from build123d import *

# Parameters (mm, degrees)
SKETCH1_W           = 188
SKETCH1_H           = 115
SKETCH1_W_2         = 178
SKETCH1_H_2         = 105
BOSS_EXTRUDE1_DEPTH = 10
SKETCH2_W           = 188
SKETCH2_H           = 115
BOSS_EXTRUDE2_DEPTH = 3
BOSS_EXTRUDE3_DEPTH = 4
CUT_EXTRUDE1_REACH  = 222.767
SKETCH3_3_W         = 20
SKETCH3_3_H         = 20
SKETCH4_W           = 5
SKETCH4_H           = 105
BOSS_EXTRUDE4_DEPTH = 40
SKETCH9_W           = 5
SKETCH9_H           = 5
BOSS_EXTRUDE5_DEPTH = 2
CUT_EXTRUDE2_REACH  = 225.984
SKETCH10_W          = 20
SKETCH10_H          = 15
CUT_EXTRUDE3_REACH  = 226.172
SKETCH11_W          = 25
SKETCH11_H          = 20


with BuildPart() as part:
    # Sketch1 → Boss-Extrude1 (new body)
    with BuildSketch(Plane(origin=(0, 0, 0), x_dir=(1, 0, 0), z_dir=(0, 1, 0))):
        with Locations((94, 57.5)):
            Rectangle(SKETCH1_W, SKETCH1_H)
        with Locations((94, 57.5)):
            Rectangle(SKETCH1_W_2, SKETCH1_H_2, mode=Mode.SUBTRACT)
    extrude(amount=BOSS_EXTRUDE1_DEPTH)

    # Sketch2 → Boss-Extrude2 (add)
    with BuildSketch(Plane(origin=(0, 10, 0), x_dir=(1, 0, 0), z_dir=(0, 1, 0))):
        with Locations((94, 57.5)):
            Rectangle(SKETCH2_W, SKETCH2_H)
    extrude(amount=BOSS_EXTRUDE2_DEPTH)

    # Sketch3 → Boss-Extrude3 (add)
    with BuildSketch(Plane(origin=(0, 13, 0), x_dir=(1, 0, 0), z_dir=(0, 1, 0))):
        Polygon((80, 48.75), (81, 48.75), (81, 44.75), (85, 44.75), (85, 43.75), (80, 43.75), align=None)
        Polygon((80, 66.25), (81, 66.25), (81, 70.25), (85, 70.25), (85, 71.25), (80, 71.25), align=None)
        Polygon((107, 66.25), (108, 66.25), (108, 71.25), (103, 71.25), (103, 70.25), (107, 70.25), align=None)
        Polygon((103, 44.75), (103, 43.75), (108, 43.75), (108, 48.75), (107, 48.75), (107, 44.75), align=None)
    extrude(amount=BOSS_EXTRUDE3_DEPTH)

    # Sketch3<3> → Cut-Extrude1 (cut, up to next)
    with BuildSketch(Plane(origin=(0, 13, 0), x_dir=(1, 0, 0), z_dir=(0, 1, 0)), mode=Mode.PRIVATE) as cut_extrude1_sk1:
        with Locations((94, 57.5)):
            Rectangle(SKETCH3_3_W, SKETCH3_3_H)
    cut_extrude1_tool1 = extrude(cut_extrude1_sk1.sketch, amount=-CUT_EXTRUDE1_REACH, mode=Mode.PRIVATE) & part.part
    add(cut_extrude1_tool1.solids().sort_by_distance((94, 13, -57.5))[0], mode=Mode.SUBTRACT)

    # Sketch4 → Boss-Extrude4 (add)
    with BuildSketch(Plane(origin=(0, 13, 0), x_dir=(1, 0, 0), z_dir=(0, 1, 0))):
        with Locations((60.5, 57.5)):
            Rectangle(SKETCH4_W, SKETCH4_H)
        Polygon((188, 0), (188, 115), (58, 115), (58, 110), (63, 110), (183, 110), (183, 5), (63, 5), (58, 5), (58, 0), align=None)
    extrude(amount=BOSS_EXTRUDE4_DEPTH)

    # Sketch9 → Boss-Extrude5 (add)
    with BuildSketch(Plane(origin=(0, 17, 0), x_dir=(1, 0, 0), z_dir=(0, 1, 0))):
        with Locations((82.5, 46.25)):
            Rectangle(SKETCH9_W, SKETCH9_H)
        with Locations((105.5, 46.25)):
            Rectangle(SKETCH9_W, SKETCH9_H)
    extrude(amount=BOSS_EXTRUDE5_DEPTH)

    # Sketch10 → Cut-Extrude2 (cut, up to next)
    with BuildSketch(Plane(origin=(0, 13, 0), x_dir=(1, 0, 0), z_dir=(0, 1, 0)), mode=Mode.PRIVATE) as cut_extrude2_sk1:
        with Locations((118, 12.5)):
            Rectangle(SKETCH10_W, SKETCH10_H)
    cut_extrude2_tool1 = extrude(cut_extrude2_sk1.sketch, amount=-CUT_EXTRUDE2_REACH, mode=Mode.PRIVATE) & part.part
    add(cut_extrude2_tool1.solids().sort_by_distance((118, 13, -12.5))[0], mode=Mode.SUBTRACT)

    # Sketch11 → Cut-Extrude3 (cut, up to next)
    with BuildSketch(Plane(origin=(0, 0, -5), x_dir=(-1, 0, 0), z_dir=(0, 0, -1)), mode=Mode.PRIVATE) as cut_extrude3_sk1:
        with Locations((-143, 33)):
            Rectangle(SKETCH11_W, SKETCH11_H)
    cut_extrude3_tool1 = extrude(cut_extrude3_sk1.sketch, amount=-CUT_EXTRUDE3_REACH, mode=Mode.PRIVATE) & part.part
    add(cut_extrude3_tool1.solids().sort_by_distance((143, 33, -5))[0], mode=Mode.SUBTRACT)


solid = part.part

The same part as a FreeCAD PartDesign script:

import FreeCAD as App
import Part
import Sketcher
Q = App.Units.Quantity


def add_polygon(sketch, points):
    """Adds a closed chain of lines whose ends are joined by coincident constraints."""
    first, n = sketch.GeometryCount, len(points)
    for a, b in zip(points, points[1:] + points[:1]):
        sketch.addGeometry(Part.LineSegment(App.Vector(*a, 0), App.Vector(*b, 0)), False)
    for i in range(n):
        sketch.addConstraint(Sketcher.Constraint("Coincident", first + i, 2, first + (i + 1) % n, 1))

doc = App.newDocument("Part")
body = doc.addObject("PartDesign::Body", "Body")

sketch1 = body.newObject("Sketcher::SketchObject", "Sketch")
sketch1.AttachmentSupport = (doc.getObject("XZ_Plane"), [""])
sketch1.MapMode = "FlatFace"
add_polygon(sketch1, [(0, -115), (0, 0), (188, 0), (188, -115)])
add_polygon(sketch1, [(183, -5), (5, -5), (5, -110), (183, -110)])
sketch1.addConstraint(Sketcher.Constraint("Vertical", 0))
sketch1.addConstraint(Sketcher.Constraint("Horizontal", 1))
sketch1.addConstraint(Sketcher.Constraint("Vertical", 2))
sketch1.addConstraint(Sketcher.Constraint("Horizontal", 3))
sketch1.addConstraint(Sketcher.Constraint("Horizontal", 4))
sketch1.addConstraint(Sketcher.Constraint("Vertical", 5))
sketch1.addConstraint(Sketcher.Constraint("Horizontal", 6))
sketch1.addConstraint(Sketcher.Constraint("Vertical", 7))
sketch1.addConstraint(Sketcher.Constraint("Coincident", 0, 2, -1, 1))
sketch1.addConstraint(Sketcher.Constraint("DistanceX", 1, 1, 1, 2, Q("188 mm")))
sketch1.addConstraint(Sketcher.Constraint("DistanceX", 4, 2, 4, 1, Q("178 mm")))
sketch1.addConstraint(Sketcher.Constraint("DistanceY", 0, 1, 0, 2, Q("115 mm")))
sketch1.addConstraint(Sketcher.Constraint("DistanceY", 5, 2, 5, 1, Q("105 mm")))
sketch1.addConstraint(Sketcher.Constraint("DistanceX", -1, 1, 4, 2, Q("5 mm")))
sketch1.addConstraint(Sketcher.Constraint("DistanceY", 4, 2, -1, 1, Q("5 mm")))
pad1 = body.newObject("PartDesign::Pad", "Pad")
pad1.Profile = sketch1
pad1.Length = 10
pad1.Reversed = True

sketch2 = body.newObject("Sketcher::SketchObject", "Sketch001")
sketch2.AttachmentSupport = (doc.getObject("XZ_Plane"), [""])
sketch2.MapMode = "FlatFace"
sketch2.AttachmentOffset = App.Placement(App.Vector(0, 0, -10), App.Rotation())
add_polygon(sketch2, [(0, -115), (0, 0), (188, 0), (188, -115)])
sketch2.addConstraint(Sketcher.Constraint("Vertical", 0))
sketch2.addConstraint(Sketcher.Constraint("Horizontal", 1))
sketch2.addConstraint(Sketcher.Constraint("Vertical", 2))
sketch2.addConstraint(Sketcher.Constraint("Horizontal", 3))
sketch2.addConstraint(Sketcher.Constraint("Coincident", 0, 2, -1, 1))
sketch2.addConstraint(Sketcher.Constraint("DistanceX", 1, 1, 1, 2, Q("188 mm")))
sketch2.addConstraint(Sketcher.Constraint("DistanceY", 0, 1, 0, 2, Q("115 mm")))
pad2 = body.newObject("PartDesign::Pad", "Pad001")
pad2.Profile = sketch2
pad2.Length = 3
pad2.Reversed = True

sketch3 = body.newObject("Sketcher::SketchObject", "Sketch002")
sketch3.AttachmentSupport = (doc.getObject("XZ_Plane"), [""])
sketch3.MapMode = "FlatFace"
sketch3.AttachmentOffset = App.Placement(App.Vector(0, 0, -13), App.Rotation())
add_polygon(sketch3, [(81, -48.8), (80, -48.8), (80, -43.8), (85, -43.8), (85, -44.8), (81, -44.8)])
add_polygon(sketch3, [(80, -66.2), (81, -66.2), (81, -70.2), (85, -70.2), (85, -71.2), (80, -71.2)])
add_polygon(sketch3, [(107, -66.2), (108, -66.2), (108, -71.2), (103, -71.2), (103, -70.2), (107, -70.2)])
add_polygon(sketch3, [(103, -44.8), (103, -43.8), (108, -43.8), (108, -48.8), (107, -48.8), (107, -44.8)])
sketch3.addConstraint(Sketcher.Constraint("Horizontal", 0))
sketch3.addConstraint(Sketcher.Constraint("Vertical", 1))
sketch3.addConstraint(Sketcher.Constraint("Horizontal", 2))
sketch3.addConstraint(Sketcher.Constraint("Vertical", 3))
sketch3.addConstraint(Sketcher.Constraint("Horizontal", 4))
sketch3.addConstraint(Sketcher.Constraint("Vertical", 5))
sketch3.addConstraint(Sketcher.Constraint("Horizontal", 6))
sketch3.addConstraint(Sketcher.Constraint("Vertical", 7))
sketch3.addConstraint(Sketcher.Constraint("Horizontal", 8))
sketch3.addConstraint(Sketcher.Constraint("Vertical", 9))
sketch3.addConstraint(Sketcher.Constraint("Horizontal", 10))
sketch3.addConstraint(Sketcher.Constraint("Vertical", 11))
sketch3.addConstraint(Sketcher.Constraint("Horizontal", 12))
sketch3.addConstraint(Sketcher.Constraint("Vertical", 13))
sketch3.addConstraint(Sketcher.Constraint("Horizontal", 14))
sketch3.addConstraint(Sketcher.Constraint("Vertical", 15))
sketch3.addConstraint(Sketcher.Constraint("Horizontal", 16))
sketch3.addConstraint(Sketcher.Constraint("Vertical", 17))
sketch3.addConstraint(Sketcher.Constraint("Vertical", 18))
sketch3.addConstraint(Sketcher.Constraint("Horizontal", 19))
sketch3.addConstraint(Sketcher.Constraint("Vertical", 20))
sketch3.addConstraint(Sketcher.Constraint("Horizontal", 21))
sketch3.addConstraint(Sketcher.Constraint("Vertical", 22))
sketch3.addConstraint(Sketcher.Constraint("Horizontal", 23))
sketch3.addConstraint(Sketcher.Constraint("Horizontal", 11, 2, 12, 2))
sketch3.addConstraint(Sketcher.Constraint("Horizontal", 10, 2, 13, 2))
sketch3.addConstraint(Sketcher.Constraint("Horizontal", 8, 2, 15, 2))
sketch3.addConstraint(Sketcher.Constraint("Horizontal", 2, 2, 18, 2))
sketch3.addConstraint(Sketcher.Constraint("Horizontal", 5, 2, 20, 2))
sketch3.addConstraint(Sketcher.Constraint("Horizontal", 4, 2, 22, 2))
sketch3.addConstraint(Sketcher.Constraint("Vertical", 5, 2, 6, 2))
sketch3.addConstraint(Sketcher.Constraint("Vertical", 3, 2, 8, 2))
sketch3.addConstraint(Sketcher.Constraint("Vertical", 1, 2, 10, 2))
sketch3.addConstraint(Sketcher.Constraint("Vertical", 15, 2, 18, 2))
sketch3.addConstraint(Sketcher.Constraint("Vertical", 13, 2, 19, 2))
sketch3.addConstraint(Sketcher.Constraint("Vertical", 17, 2, 21, 2))
sketch3.addConstraint(Sketcher.Constraint("Equal", 6, 12))
sketch3.addConstraint(Sketcher.Constraint("Equal", 10, 14))
sketch3.addConstraint(Sketcher.Constraint("Equal", 19, 1))
sketch3.addConstraint(Sketcher.Constraint("Equal", 21, 3))
sketch3.addConstraint(Sketcher.Constraint("Equal", 5, 7))
sketch3.addConstraint(Sketcher.Constraint("Equal", 3, 9))
sketch3.addConstraint(Sketcher.Constraint("DistanceX", 0, 2, 0, 1, Q("1 mm")))
sketch3.addConstraint(Sketcher.Constraint("DistanceX", 2, 1, 2, 2, Q("5 mm")))
sketch3.addConstraint(Sketcher.Constraint("DistanceX", -1, 1, 0, 2, Q("80 mm")))
sketch3.addConstraint(Sketcher.Constraint("DistanceX", -1, 1, 12, 2, Q("108 mm")))
sketch3.addConstraint(Sketcher.Constraint("DistanceY", 6, 2, 5, 2, Q("17.5 mm")))
sketch3.addConstraint(Sketcher.Constraint("DistanceY", 0, 2, -1, 1, Q("48.75 mm")))
pad3 = body.newObject("PartDesign::Pad", "Pad002")
pad3.Profile = sketch3
pad3.Length = 4
pad3.Reversed = True

sketch4 = body.newObject("Sketcher::SketchObject", "Sketch003")
sketch4.AttachmentSupport = (doc.getObject("XZ_Plane"), [""])
sketch4.MapMode = "FlatFace"
sketch4.AttachmentOffset = App.Placement(App.Vector(0, 0, -13), App.Rotation())
add_polygon(sketch4, [(84, -68), (84, -48), (104, -48), (104, -68)])
sketch4.addConstraint(Sketcher.Constraint("Vertical", 0))
sketch4.addConstraint(Sketcher.Constraint("Horizontal", 1))
sketch4.addConstraint(Sketcher.Constraint("Vertical", 2))
sketch4.addConstraint(Sketcher.Constraint("Horizontal", 3))
sketch4.addConstraint(Sketcher.Constraint("Equal", 3, 0))
sketch4.addConstraint(Sketcher.Constraint("DistanceX", 1, 1, 1, 2, Q("20 mm")))
sketch4.addConstraint(Sketcher.Constraint("DistanceX", -1, 1, 0, 2, Q("84 mm")))
sketch4.addConstraint(Sketcher.Constraint("DistanceY", 0, 2, -1, 1, Q("47.5 mm")))
pocket1 = body.newObject("PartDesign::Pocket", "Pocket")
pocket1.Profile = sketch4
pocket1.Type = "UpToFirst"
pocket1.Reversed = True

sketch5 = body.newObject("Sketcher::SketchObject", "Sketch004")
sketch5.AttachmentSupport = (doc.getObject("XZ_Plane"), [""])
sketch5.MapMode = "FlatFace"
sketch5.AttachmentOffset = App.Placement(App.Vector(0, 0, -13), App.Rotation())
add_polygon(sketch5, [(58, 0), (188, 0), (188, -115), (58, -115)])
add_polygon(sketch5, [(63, -5), (63, -110), (183, -110), (183, -5)])
sketch5.addConstraint(Sketcher.Constraint("Horizontal", 0))
sketch5.addConstraint(Sketcher.Constraint("Vertical", 1))
sketch5.addConstraint(Sketcher.Constraint("Horizontal", 2))
sketch5.addConstraint(Sketcher.Constraint("Vertical", 3))
sketch5.addConstraint(Sketcher.Constraint("Vertical", 4))
sketch5.addConstraint(Sketcher.Constraint("Horizontal", 5))
sketch5.addConstraint(Sketcher.Constraint("Vertical", 6))
sketch5.addConstraint(Sketcher.Constraint("Horizontal", 7))
sketch5.addConstraint(Sketcher.Constraint("PointOnObject", 0, 2, -1))
sketch5.addConstraint(Sketcher.Constraint("DistanceX", 0, 1, 0, 2, Q("130 mm")))
sketch5.addConstraint(Sketcher.Constraint("DistanceX", 5, 1, 5, 2, Q("120 mm")))
sketch5.addConstraint(Sketcher.Constraint("DistanceY", 1, 2, 1, 1, Q("115 mm")))
sketch5.addConstraint(Sketcher.Constraint("DistanceY", 4, 2, 4, 1, Q("105 mm")))
sketch5.addConstraint(Sketcher.Constraint("DistanceX", -1, 1, 0, 2, Q("188 mm")))
sketch5.addConstraint(Sketcher.Constraint("DistanceX", -1, 1, 4, 2, Q("63 mm")))
sketch5.addConstraint(Sketcher.Constraint("DistanceY", 4, 2, -1, 1, Q("110 mm")))
pad4 = body.newObject("PartDesign::Pad", "Pad003")
pad4.Profile = sketch5
pad4.Length = 40
pad4.Reversed = True

sketch6 = body.newObject("Sketcher::SketchObject", "Sketch005")
sketch6.AttachmentSupport = (doc.getObject("XZ_Plane"), [""])
sketch6.MapMode = "FlatFace"
sketch6.AttachmentOffset = App.Placement(App.Vector(0, 0, -17), App.Rotation())
add_polygon(sketch6, [(80, -49), (80, -44), (85, -44), (85, -49)])
add_polygon(sketch6, [(103, -49), (103, -44), (108, -44), (108, -49)])
sketch6.addConstraint(Sketcher.Constraint("Vertical", 0))
sketch6.addConstraint(Sketcher.Constraint("Horizontal", 1))
sketch6.addConstraint(Sketcher.Constraint("Vertical", 2))
sketch6.addConstraint(Sketcher.Constraint("Horizontal", 3))
sketch6.addConstraint(Sketcher.Constraint("Vertical", 4))
sketch6.addConstraint(Sketcher.Constraint("Horizontal", 5))
sketch6.addConstraint(Sketcher.Constraint("Vertical", 6))
sketch6.addConstraint(Sketcher.Constraint("Horizontal", 7))
sketch6.addConstraint(Sketcher.Constraint("Horizontal", 1, 2, 4, 2))
sketch6.addConstraint(Sketcher.Constraint("Horizontal", 3, 2, 6, 2))
sketch6.addConstraint(Sketcher.Constraint("Equal", 3, 5))
sketch6.addConstraint(Sketcher.Constraint("Equal", 7, 0))
sketch6.addConstraint(Sketcher.Constraint("DistanceX", 1, 1, 1, 2, Q("5 mm")))
sketch6.addConstraint(Sketcher.Constraint("DistanceX", -1, 1, 0, 2, Q("80 mm")))
sketch6.addConstraint(Sketcher.Constraint("DistanceX", -1, 1, 4, 2, Q("103 mm")))
sketch6.addConstraint(Sketcher.Constraint("DistanceY", 0, 2, -1, 1, Q("43.75 mm")))
pad5 = body.newObject("PartDesign::Pad", "Pad004")
pad5.Profile = sketch6
pad5.Length = 2
pad5.Reversed = True

sketch7 = body.newObject("Sketcher::SketchObject", "Sketch006")
sketch7.AttachmentSupport = (doc.getObject("XZ_Plane"), [""])
sketch7.MapMode = "FlatFace"
sketch7.AttachmentOffset = App.Placement(App.Vector(0, 0, -13), App.Rotation())
add_polygon(sketch7, [(108, -20), (108, -5), (128, -5), (128, -20)])
sketch7.addConstraint(Sketcher.Constraint("Vertical", 0))
sketch7.addConstraint(Sketcher.Constraint("Horizontal", 1))
sketch7.addConstraint(Sketcher.Constraint("Vertical", 2))
sketch7.addConstraint(Sketcher.Constraint("Horizontal", 3))
sketch7.addConstraint(Sketcher.Constraint("DistanceX", 1, 1, 1, 2, Q("20 mm")))
sketch7.addConstraint(Sketcher.Constraint("DistanceY", 0, 1, 0, 2, Q("15 mm")))
sketch7.addConstraint(Sketcher.Constraint("DistanceX", -1, 1, 0, 2, Q("108 mm")))
sketch7.addConstraint(Sketcher.Constraint("DistanceY", 0, 2, -1, 1, Q("5 mm")))
pocket2 = body.newObject("PartDesign::Pocket", "Pocket001")
pocket2.Profile = sketch7
pocket2.Type = "UpToFirst"
pocket2.Reversed = True

sketch8 = body.newObject("Sketcher::SketchObject", "Sketch007")
sketch8.AttachmentSupport = (doc.getObject("XY_Plane"), [""])
sketch8.MapMode = "FlatFace"
sketch8.AttachmentOffset = App.Placement(App.Vector(0, 0, -5), App.Rotation())
add_polygon(sketch8, [(156, 43), (156, 23), (130, 23), (130, 43)])
sketch8.addConstraint(Sketcher.Constraint("Vertical", 0))
sketch8.addConstraint(Sketcher.Constraint("Horizontal", 1))
sketch8.addConstraint(Sketcher.Constraint("Vertical", 2))
sketch8.addConstraint(Sketcher.Constraint("Horizontal", 3))
sketch8.addConstraint(Sketcher.Constraint("DistanceX", 1, 2, 1, 1, Q("25 mm")))
sketch8.addConstraint(Sketcher.Constraint("DistanceY", 0, 2, 0, 1, Q("20 mm")))
sketch8.addConstraint(Sketcher.Constraint("DistanceY", -1, 1, 0, 2, Q("23 mm")))
sketch8.addConstraint(Sketcher.Constraint("DistanceX", -1, 1, 0, 2, Q("155.5 mm")))
pocket3 = body.newObject("PartDesign::Pocket", "Pocket002")
pocket3.Profile = sketch8
pocket3.Type = "UpToFirst"
pocket3.Reversed = True

doc.recompute()
